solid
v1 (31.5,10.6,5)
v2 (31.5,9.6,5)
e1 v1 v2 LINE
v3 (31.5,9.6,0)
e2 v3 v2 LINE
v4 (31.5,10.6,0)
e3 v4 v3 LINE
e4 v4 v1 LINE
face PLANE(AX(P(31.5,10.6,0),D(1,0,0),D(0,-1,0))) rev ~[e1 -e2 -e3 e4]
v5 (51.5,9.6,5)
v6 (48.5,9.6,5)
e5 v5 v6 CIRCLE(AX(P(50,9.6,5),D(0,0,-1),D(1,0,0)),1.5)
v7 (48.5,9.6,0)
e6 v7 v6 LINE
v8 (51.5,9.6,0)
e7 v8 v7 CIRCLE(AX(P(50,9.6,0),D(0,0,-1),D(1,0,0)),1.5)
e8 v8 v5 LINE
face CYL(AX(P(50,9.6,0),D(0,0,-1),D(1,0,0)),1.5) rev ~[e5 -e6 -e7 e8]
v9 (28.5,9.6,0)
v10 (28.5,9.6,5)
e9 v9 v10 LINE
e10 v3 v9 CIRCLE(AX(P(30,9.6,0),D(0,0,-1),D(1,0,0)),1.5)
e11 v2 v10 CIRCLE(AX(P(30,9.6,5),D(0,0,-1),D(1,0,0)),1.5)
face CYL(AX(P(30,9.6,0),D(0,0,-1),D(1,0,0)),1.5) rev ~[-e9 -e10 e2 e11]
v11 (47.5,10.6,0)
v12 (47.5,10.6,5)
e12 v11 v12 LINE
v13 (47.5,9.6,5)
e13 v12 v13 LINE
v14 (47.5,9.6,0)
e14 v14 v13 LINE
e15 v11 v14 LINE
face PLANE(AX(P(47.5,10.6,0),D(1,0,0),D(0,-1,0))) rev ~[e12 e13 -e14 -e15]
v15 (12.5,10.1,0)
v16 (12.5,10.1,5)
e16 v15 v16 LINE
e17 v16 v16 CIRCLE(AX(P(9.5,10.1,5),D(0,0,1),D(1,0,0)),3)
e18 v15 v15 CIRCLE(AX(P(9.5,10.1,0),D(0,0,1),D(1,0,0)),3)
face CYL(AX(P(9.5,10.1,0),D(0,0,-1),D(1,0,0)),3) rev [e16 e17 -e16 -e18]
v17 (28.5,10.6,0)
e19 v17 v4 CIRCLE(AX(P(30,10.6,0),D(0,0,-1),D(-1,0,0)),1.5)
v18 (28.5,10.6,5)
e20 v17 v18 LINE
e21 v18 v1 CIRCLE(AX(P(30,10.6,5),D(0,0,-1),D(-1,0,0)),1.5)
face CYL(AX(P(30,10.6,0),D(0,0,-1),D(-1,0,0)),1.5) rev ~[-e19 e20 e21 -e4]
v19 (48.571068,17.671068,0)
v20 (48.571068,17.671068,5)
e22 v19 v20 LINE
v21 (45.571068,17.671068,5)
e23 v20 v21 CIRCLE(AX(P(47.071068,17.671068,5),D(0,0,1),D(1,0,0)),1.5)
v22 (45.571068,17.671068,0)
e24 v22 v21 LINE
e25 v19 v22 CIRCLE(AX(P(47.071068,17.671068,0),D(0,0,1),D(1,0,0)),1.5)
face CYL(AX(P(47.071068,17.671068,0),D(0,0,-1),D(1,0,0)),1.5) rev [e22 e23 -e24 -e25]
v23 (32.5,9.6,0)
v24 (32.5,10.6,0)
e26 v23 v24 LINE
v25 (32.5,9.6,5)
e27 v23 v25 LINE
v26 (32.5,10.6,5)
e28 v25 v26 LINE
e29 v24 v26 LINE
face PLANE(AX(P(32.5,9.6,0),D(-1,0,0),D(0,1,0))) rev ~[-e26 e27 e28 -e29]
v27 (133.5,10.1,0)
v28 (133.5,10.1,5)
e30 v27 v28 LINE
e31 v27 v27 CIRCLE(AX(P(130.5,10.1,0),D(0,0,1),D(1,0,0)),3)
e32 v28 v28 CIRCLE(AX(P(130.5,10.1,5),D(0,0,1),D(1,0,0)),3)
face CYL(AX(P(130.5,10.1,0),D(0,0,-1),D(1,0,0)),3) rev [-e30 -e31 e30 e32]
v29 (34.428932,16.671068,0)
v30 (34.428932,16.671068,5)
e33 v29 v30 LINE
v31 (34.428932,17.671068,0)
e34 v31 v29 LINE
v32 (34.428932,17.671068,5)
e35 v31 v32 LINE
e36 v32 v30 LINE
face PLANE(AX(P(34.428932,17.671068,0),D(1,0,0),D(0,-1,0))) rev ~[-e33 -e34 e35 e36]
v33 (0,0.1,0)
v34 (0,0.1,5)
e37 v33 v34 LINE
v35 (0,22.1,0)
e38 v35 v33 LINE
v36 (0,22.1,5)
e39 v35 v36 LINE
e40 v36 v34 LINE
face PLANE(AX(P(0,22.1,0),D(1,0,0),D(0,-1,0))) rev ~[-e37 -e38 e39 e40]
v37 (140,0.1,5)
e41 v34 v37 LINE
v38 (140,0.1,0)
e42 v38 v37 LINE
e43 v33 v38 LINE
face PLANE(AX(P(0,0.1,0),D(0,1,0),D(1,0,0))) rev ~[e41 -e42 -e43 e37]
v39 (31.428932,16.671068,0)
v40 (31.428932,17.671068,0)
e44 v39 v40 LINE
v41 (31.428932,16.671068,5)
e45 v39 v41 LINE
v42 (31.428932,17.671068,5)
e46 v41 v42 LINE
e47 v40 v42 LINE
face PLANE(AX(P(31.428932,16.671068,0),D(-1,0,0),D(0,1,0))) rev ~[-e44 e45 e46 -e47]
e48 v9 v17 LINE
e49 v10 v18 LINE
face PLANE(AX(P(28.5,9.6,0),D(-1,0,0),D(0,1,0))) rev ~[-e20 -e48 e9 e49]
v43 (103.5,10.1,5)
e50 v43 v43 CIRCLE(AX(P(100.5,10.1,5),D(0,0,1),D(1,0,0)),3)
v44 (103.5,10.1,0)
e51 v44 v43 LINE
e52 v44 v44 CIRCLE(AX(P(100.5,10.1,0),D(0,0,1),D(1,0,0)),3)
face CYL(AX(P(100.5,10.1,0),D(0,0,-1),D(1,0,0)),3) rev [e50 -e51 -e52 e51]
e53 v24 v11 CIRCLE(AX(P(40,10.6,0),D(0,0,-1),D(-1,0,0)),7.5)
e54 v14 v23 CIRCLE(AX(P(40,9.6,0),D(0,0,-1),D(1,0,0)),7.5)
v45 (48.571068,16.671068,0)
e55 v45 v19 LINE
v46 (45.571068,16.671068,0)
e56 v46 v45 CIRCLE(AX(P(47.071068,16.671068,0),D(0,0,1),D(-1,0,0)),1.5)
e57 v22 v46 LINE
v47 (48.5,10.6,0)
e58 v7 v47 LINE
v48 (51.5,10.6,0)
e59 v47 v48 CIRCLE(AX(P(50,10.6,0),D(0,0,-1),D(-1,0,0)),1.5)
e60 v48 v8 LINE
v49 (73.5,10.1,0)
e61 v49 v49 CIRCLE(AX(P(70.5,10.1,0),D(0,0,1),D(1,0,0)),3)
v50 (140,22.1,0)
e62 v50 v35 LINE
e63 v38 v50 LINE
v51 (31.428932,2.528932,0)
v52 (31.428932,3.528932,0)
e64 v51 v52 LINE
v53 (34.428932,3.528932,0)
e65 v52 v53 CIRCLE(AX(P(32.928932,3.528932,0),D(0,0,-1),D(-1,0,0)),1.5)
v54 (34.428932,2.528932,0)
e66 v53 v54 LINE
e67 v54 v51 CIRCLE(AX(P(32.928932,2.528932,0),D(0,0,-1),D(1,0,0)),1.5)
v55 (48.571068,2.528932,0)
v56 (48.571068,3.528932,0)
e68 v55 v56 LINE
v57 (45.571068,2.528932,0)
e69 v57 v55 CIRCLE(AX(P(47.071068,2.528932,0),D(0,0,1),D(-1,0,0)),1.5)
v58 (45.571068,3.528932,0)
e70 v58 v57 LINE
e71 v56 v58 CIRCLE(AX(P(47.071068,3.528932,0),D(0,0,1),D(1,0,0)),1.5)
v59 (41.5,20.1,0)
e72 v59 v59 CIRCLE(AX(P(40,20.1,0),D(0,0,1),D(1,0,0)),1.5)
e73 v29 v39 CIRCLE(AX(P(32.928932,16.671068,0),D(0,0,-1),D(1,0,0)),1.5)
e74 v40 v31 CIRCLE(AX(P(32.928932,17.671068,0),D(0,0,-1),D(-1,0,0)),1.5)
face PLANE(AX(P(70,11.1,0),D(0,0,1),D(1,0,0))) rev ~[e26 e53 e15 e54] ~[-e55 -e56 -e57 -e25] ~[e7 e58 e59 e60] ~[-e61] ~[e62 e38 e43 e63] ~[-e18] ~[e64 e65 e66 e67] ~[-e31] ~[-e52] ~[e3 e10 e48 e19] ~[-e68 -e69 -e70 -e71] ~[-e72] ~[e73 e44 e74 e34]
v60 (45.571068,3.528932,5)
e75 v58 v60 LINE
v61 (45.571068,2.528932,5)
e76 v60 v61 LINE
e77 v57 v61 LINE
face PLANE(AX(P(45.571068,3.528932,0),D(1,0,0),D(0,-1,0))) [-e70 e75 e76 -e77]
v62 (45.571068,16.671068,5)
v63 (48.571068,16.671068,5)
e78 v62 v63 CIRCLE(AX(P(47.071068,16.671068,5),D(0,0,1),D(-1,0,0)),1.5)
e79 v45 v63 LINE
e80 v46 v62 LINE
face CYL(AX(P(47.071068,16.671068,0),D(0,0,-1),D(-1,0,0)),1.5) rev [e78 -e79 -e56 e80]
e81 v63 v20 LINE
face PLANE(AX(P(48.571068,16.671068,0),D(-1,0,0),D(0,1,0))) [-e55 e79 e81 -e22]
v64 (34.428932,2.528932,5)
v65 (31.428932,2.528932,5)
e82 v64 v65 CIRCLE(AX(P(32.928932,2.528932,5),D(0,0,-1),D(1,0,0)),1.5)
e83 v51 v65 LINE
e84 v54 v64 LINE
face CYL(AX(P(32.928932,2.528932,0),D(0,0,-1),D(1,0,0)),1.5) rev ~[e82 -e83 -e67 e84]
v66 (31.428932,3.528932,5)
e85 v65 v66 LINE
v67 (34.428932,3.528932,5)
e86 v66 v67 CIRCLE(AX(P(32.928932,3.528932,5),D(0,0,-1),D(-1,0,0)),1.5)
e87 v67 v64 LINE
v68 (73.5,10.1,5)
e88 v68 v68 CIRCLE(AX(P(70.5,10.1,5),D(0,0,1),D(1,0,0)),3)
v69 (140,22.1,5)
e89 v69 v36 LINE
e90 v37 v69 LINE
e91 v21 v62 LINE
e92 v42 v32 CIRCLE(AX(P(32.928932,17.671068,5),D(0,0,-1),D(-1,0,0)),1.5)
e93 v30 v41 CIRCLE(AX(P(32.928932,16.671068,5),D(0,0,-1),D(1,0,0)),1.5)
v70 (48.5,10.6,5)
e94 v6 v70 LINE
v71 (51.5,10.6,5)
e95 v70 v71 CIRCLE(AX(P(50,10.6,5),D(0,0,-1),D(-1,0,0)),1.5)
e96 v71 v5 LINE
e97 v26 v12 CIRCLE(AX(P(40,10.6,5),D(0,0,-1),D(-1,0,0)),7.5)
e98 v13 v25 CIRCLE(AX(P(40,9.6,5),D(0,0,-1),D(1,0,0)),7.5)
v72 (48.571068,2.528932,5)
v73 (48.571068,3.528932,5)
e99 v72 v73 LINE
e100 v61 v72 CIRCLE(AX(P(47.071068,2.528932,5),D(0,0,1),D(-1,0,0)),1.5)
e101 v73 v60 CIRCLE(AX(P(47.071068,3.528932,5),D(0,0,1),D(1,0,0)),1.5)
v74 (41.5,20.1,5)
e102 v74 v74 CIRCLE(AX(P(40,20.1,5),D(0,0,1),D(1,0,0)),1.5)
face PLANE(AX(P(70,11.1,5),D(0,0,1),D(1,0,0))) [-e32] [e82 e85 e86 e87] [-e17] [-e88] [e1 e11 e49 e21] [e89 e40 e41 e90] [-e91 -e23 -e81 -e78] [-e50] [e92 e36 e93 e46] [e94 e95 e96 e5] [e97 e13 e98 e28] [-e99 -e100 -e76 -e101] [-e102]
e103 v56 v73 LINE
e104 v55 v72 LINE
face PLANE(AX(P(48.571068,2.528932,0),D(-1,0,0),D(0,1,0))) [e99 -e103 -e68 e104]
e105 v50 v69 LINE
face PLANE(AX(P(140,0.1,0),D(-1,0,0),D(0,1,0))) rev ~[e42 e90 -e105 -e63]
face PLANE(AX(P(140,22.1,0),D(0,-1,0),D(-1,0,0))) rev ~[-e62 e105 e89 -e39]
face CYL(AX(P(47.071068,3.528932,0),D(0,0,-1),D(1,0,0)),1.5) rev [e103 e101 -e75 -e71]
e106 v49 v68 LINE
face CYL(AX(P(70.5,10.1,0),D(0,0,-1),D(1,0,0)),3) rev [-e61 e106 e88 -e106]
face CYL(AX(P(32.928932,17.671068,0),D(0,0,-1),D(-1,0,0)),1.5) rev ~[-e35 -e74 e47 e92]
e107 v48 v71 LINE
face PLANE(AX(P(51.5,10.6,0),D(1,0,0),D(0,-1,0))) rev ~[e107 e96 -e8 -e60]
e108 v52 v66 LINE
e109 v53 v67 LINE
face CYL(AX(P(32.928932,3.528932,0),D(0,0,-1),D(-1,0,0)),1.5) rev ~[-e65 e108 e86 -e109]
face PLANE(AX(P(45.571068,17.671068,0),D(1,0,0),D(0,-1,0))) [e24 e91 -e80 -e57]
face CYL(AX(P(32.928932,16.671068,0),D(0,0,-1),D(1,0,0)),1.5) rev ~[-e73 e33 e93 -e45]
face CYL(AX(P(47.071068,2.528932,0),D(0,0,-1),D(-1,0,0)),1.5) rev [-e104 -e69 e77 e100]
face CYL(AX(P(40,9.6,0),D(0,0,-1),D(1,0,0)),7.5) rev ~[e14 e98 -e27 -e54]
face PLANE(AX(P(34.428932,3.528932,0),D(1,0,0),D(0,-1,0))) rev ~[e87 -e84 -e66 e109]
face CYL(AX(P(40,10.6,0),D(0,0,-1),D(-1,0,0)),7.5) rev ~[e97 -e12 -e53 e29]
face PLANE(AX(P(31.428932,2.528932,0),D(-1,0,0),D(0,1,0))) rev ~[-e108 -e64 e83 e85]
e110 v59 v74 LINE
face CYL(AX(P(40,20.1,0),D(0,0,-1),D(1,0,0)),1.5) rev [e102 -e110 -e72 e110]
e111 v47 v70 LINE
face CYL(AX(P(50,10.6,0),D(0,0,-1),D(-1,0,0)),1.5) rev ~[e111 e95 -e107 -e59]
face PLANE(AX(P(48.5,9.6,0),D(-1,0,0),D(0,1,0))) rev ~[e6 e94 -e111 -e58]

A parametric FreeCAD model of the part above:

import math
import FreeCAD as App
import Part
import Sketcher

V = App.Vector
Q = App.Units.Quantity


def add_polygon(sketch, points):
    """Adds a closed chain of lines whose ends are joined by coincident constraints."""
    first, n = sketch.GeometryCount, len(points)
    for a, b in zip(points, points[1:] + points[:1]):
        sketch.addGeometry(Part.LineSegment(App.Vector(*a, 0), App.Vector(*b, 0)), False)
    for i in range(n):
        sketch.addConstraint(Sketcher.Constraint("Coincident", first + i, 2, first + (i + 1) % n, 1))

doc = App.newDocument("Part")
body = doc.addObject("PartDesign::Body", "Body")

sketch1 = body.newObject("Sketcher::SketchObject", "Sketch")
sketch1.AttachmentSupport = (doc.getObject("XY_Plane"), [""])
sketch1.MapMode = "FlatFace"
add_polygon(sketch1, [(0, 0.1), (140, 0.1), (140, 22.1), (0, 22.1)])
sketch1.addGeometry(Part.LineSegment(V(31.4, 2.5, 0), V(31.4, 3.5, 0)), False)
sketch1.addGeometry(Part.ArcOfCircle(Part.Circle(V(32.9, 3.5, 0), V(0, 0, 1), 1.5), math.radians(0), math.radians(180)), False)
sketch1.addGeometry(Part.LineSegment(V(34.4, 3.5, 0), V(34.4, 2.5, 0)), False)
sketch1.addGeometry(Part.ArcOfCircle(Part.Circle(V(32.9, 2.5, 0), V(0, 0, 1), 1.5), math.radians(180), math.radians(360)), False)
sketch1.addGeometry(Part.ArcOfCircle(Part.Circle(V(47.1, 3.5, 0), V(0, 0, 1), 1.5), math.radians(0), math.radians(180)), False)
sketch1.addGeometry(Part.LineSegment(V(48.6, 3.5, 0), V(48.6, 2.5, 0)), False)
sketch1.addGeometry(Part.ArcOfCircle(Part.Circle(V(47.1, 2.5, 0), V(0, 0, 1), 1.5), math.radians(180), math.radians(360)), False)
sketch1.addGeometry(Part.LineSegment(V(45.6, 2.5, 0), V(45.6, 3.5, 0)), False)
sketch1.addGeometry(Part.Circle(V(9.5, 10.1, 0), V(0, 0, 1), 3), False)
sketch1.addGeometry(Part.LineSegment(V(28.5, 9.6, 0), V(28.5, 10.6, 0)), False)
sketch1.addGeometry(Part.ArcOfCircle(Part.Circle(V(30, 10.6, 0), V(0, 0, 1), 1.5), math.radians(0), math.radians(180)), False)
sketch1.addGeometry(Part.LineSegment(V(31.5, 10.6, 0), V(31.5, 9.6, 0)), False)
sketch1.addGeometry(Part.ArcOfCircle(Part.Circle(V(30, 9.6, 0), V(0, 0, 1), 1.5), math.radians(180), math.radians(360)), False)
sketch1.addGeometry(Part.LineSegment(V(32.5, 9.6, 0), V(32.5, 10.6, 0)), False)
sketch1.addGeometry(Part.ArcOfCircle(Part.Circle(V(40, 10.6, 0), V(0, 0, 1), 7.5), math.radians(0), math.radians(180)), False)
sketch1.addGeometry(Part.LineSegment(V(47.5, 10.6, 0), V(47.5, 9.6, 0)), False)
sketch1.addGeometry(Part.ArcOfCircle(Part.Circle(V(40, 9.6, 0), V(0, 0, 1), 7.5), math.radians(180), math.radians(360)), False)
sketch1.addGeometry(Part.LineSegment(V(51.5, 10.6, 0), V(51.5, 9.6, 0)), False)
sketch1.addGeometry(Part.ArcOfCircle(Part.Circle(V(50, 9.6, 0), V(0, 0, 1), 1.5), math.radians(180), math.radians(360)), False)
sketch1.addGeometry(Part.LineSegment(V(48.5, 9.6, 0), V(48.5, 10.6, 0)), False)
sketch1.addGeometry(Part.ArcOfCircle(Part.Circle(V(50, 10.6, 0), V(0, 0, 1), 1.5), math.radians(0), math.radians(180)), False)
sketch1.addGeometry(Part.Circle(V(70.5, 10.1, 0), V(0, 0, 1), 3), False)
sketch1.addGeometry(Part.Circle(V(100.5, 10.1, 0), V(0, 0, 1), 3), False)
sketch1.addGeometry(Part.Circle(V(130.5, 10.1, 0), V(0, 0, 1), 3), False)
sketch1.addGeometry(Part.LineSegment(V(31.4, 16.7, 0), V(31.4, 17.7, 0)), False)
sketch1.addGeometry(Part.ArcOfCircle(Part.Circle(V(32.9, 17.7, 0), V(0, 0, 1), 1.5), math.radians(0), math.radians(180)), False)
sketch1.addGeometry(Part.LineSegment(V(34.4, 17.7, 0), V(34.4, 16.7, 0)), False)
sketch1.addGeometry(Part.ArcOfCircle(Part.Circle(V(32.9, 16.7, 0), V(0, 0, 1), 1.5), math.radians(180), math.radians(360)), False)
sketch1.addGeometry(Part.ArcOfCircle(Part.Circle(V(47.1, 16.7, 0), V(0, 0, 1), 1.5), math.radians(180), math.radians(360)), False)
sketch1.addGeometry(Part.LineSegment(V(45.6, 16.7, 0), V(45.6, 17.7, 0)), False)
sketch1.addGeometry(Part.ArcOfCircle(Part.Circle(V(47.1, 17.7, 0), V(0, 0, 1), 1.5), math.radians(0), math.radians(180)), False)
sketch1.addGeometry(Part.LineSegment(V(48.6, 17.7, 0), V(48.6, 16.7, 0)), False)
sketch1.addGeometry(Part.Circle(V(40, 20.1, 0), V(0, 0, 1), 1.5), False)
sketch1.addConstraint([
    Sketcher.Constraint("Tangent", 4, 2, 5, 2),
    Sketcher.Constraint("Tangent", 5, 1, 6, 1),
    Sketcher.Constraint("Tangent", 6, 2, 7, 2),
    Sketcher.Constraint("Tangent", 7, 1, 4, 1),
    Sketcher.Constraint("Tangent", 8, 1, 9, 1),
    Sketcher.Constraint("Tangent", 9, 2, 10, 2),
    Sketcher.Constraint("Tangent", 10, 1, 11, 1),
    Sketcher.Constraint("Tangent", 11, 2, 8, 2),
    Sketcher.Constraint("Tangent", 13, 2, 14, 2),
    Sketcher.Constraint("Tangent", 14, 1, 15, 1),
    Sketcher.Constraint("Tangent", 15, 2, 16, 2),
    Sketcher.Constraint("Tangent", 16, 1, 13, 1),
    Sketcher.Constraint("Tangent", 17, 2, 18, 2),
    Sketcher.Constraint("Tangent", 18, 1, 19, 1),
    Sketcher.Constraint("Tangent", 19, 2, 20, 2),
    Sketcher.Constraint("Tangent", 20, 1, 17, 1),
    Sketcher.Constraint("Tangent", 21, 2, 22, 2),
    Sketcher.Constraint("Tangent", 22, 1, 23, 1),
    Sketcher.Constraint("Tangent", 23, 2, 24, 2),
    Sketcher.Constraint("Tangent", 24, 1, 21, 1),
    Sketcher.Constraint("Tangent", 28, 2, 29, 2),
    Sketcher.Constraint("Tangent", 29, 1, 30, 1),
    Sketcher.Constraint("Tangent", 30, 2, 31, 2),
    Sketcher.Constraint("Tangent", 31, 1, 28, 1),
    Sketcher.Constraint("Tangent", 32, 1, 33, 1),
    Sketcher.Constraint("Tangent", 33, 2, 34, 2),
    Sketcher.Constraint("Tangent", 34, 1, 35, 1),
    Sketcher.Constraint("Tangent", 35, 2, 32, 2),
    Sketcher.Constraint("Horizontal", 0),
    Sketcher.Constraint("Vertical", 1),
    Sketcher.Constraint("Horizontal", 2),
    Sketcher.Constraint("Vertical", 3),
    Sketcher.Constraint("Vertical", 4),
    Sketcher.Constraint("Vertical", 6),
    Sketcher.Constraint("Vertical", 9),
    Sketcher.Constraint("Vertical", 11),
    Sketcher.Constraint("Vertical", 13),
    Sketcher.Constraint("Vertical", 15),
    Sketcher.Constraint("Vertical", 17),
    Sketcher.Constraint("Vertical", 19),
    Sketcher.Constraint("Vertical", 21),
    Sketcher.Constraint("Vertical", 23),
    Sketcher.Constraint("Vertical", 28),
    Sketcher.Constraint("Vertical", 30),
    Sketcher.Constraint("Vertical", 33),
    Sketcher.Constraint("Vertical", 35),
    Sketcher.Constraint("Equal", 7, 8),
    Sketcher.Constraint("Equal", 10, 14),
    Sketcher.Constraint("Equal", 16, 22),
    Sketcher.Constraint("Equal", 12, 25),
    Sketcher.Constraint("Equal", 25, 26),
    Sketcher.Constraint("Equal", 26, 27),
    Sketcher.Constraint("Equal", 24, 29),
    Sketcher.Constraint("Equal", 31, 32),
    Sketcher.Constraint("Equal", 34, 36),
    Sketcher.Constraint("PointOnObject", 2, 2, -2),
    Sketcher.Constraint("Horizontal", 5, 3, 8, 3),
    Sketcher.Constraint("Horizontal", 7, 3, 10, 3),
    Sketcher.Constraint("Horizontal", 14, 3, 18, 3),
    Sketcher.Constraint("Horizontal", 16, 3, 20, 3),
    Sketcher.Constraint("Horizontal", 20, 3, 22, 3),
    Sketcher.Constraint("Horizontal", 18, 3, 24, 3),
    Sketcher.Constraint("Horizontal", 12, 3, 25, 3),
    Sketcher.Constraint("Horizontal", 25, 3, 26, 3),
    Sketcher.Constraint("Horizontal", 26, 3, 27, 3),
    Sketcher.Constraint("Horizontal", 31, 3, 32, 3),
    Sketcher.Constraint("Horizontal", 29, 3, 34, 3),
    Sketcher.Constraint("Vertical", 7, 3, 29, 3),
    Sketcher.Constraint("Vertical", 10, 3, 32, 3),
    Sketcher.Constraint("Vertical", 20, 3, 36, 3),
    Sketcher.Constraint("Equal", 11, 13),
    Sketcher.Constraint("Equal", 23, 28),
    Sketcher.Constraint("Diameter", 12, Q("6 mm")),
    Sketcher.Constraint("Diameter", 36, Q("3 mm")),
    Sketcher.Constraint("Radius", 18, Q("7.5 mm")),
    Sketcher.Constraint("DistanceX", 0, 1, 0, 2, Q("140 mm")),
    Sketcher.Constraint("DistanceY", 1, 1, 1, 2, Q("22 mm")),
    Sketcher.Constraint("DistanceY", 4, 1, 4, 2, Q("1 mm")),
    Sketcher.Constraint("DistanceX", -1, 1, 14, 3, Q("30 mm")),
    Sketcher.Constraint("DistanceX", -1, 1, 18, 3, Q("40 mm")),
    Sketcher.Constraint("DistanceX", -1, 1, 22, 3, Q("50 mm")),
    Sketcher.Constraint("DistanceX", 25, 3, 26, 3, Q("30 mm")),
    Sketcher.Constraint("DistanceX", 26, 3, 27, 3, Q("30 mm")),
    Sketcher.Constraint("DistanceY", 0, 2, 27, 3, Q("10 mm")),
    Sketcher.Constraint("DistanceX", -1, 1, 12, 3, Q("9.5 mm")),
    Sketcher.Constraint("DistanceY", -1, 1, 12, 3, Q("10.1 mm")),
    Sketcher.Constraint("DistanceY", -1, 1, 14, 3, Q("10.6 mm")),
    Sketcher.Constraint("DistanceX", -1, 1, 25, 3, Q("70.5 mm")),
    Sketcher.Constraint("DistanceY", -1, 1, 36, 3, Q("20.1 mm")),
    Sketcher.Constraint("DistanceX", -1, 1, 5, 3, Q("32.928932 mm")),
    Sketcher.Constraint("DistanceY", -1, 1, 5, 3, Q("3.528932 mm")),
    Sketcher.Constraint("DistanceX", -1, 1, 8, 3, Q("47.071068 mm")),
    Sketcher.Constraint("DistanceY", -1, 1, 29, 3, Q("17.671068 mm")),
])
pad1 = body.newObject("PartDesign::Pad", "Pad")
pad1.Profile = sketch1
pad1.Length = 5

doc.recompute()
